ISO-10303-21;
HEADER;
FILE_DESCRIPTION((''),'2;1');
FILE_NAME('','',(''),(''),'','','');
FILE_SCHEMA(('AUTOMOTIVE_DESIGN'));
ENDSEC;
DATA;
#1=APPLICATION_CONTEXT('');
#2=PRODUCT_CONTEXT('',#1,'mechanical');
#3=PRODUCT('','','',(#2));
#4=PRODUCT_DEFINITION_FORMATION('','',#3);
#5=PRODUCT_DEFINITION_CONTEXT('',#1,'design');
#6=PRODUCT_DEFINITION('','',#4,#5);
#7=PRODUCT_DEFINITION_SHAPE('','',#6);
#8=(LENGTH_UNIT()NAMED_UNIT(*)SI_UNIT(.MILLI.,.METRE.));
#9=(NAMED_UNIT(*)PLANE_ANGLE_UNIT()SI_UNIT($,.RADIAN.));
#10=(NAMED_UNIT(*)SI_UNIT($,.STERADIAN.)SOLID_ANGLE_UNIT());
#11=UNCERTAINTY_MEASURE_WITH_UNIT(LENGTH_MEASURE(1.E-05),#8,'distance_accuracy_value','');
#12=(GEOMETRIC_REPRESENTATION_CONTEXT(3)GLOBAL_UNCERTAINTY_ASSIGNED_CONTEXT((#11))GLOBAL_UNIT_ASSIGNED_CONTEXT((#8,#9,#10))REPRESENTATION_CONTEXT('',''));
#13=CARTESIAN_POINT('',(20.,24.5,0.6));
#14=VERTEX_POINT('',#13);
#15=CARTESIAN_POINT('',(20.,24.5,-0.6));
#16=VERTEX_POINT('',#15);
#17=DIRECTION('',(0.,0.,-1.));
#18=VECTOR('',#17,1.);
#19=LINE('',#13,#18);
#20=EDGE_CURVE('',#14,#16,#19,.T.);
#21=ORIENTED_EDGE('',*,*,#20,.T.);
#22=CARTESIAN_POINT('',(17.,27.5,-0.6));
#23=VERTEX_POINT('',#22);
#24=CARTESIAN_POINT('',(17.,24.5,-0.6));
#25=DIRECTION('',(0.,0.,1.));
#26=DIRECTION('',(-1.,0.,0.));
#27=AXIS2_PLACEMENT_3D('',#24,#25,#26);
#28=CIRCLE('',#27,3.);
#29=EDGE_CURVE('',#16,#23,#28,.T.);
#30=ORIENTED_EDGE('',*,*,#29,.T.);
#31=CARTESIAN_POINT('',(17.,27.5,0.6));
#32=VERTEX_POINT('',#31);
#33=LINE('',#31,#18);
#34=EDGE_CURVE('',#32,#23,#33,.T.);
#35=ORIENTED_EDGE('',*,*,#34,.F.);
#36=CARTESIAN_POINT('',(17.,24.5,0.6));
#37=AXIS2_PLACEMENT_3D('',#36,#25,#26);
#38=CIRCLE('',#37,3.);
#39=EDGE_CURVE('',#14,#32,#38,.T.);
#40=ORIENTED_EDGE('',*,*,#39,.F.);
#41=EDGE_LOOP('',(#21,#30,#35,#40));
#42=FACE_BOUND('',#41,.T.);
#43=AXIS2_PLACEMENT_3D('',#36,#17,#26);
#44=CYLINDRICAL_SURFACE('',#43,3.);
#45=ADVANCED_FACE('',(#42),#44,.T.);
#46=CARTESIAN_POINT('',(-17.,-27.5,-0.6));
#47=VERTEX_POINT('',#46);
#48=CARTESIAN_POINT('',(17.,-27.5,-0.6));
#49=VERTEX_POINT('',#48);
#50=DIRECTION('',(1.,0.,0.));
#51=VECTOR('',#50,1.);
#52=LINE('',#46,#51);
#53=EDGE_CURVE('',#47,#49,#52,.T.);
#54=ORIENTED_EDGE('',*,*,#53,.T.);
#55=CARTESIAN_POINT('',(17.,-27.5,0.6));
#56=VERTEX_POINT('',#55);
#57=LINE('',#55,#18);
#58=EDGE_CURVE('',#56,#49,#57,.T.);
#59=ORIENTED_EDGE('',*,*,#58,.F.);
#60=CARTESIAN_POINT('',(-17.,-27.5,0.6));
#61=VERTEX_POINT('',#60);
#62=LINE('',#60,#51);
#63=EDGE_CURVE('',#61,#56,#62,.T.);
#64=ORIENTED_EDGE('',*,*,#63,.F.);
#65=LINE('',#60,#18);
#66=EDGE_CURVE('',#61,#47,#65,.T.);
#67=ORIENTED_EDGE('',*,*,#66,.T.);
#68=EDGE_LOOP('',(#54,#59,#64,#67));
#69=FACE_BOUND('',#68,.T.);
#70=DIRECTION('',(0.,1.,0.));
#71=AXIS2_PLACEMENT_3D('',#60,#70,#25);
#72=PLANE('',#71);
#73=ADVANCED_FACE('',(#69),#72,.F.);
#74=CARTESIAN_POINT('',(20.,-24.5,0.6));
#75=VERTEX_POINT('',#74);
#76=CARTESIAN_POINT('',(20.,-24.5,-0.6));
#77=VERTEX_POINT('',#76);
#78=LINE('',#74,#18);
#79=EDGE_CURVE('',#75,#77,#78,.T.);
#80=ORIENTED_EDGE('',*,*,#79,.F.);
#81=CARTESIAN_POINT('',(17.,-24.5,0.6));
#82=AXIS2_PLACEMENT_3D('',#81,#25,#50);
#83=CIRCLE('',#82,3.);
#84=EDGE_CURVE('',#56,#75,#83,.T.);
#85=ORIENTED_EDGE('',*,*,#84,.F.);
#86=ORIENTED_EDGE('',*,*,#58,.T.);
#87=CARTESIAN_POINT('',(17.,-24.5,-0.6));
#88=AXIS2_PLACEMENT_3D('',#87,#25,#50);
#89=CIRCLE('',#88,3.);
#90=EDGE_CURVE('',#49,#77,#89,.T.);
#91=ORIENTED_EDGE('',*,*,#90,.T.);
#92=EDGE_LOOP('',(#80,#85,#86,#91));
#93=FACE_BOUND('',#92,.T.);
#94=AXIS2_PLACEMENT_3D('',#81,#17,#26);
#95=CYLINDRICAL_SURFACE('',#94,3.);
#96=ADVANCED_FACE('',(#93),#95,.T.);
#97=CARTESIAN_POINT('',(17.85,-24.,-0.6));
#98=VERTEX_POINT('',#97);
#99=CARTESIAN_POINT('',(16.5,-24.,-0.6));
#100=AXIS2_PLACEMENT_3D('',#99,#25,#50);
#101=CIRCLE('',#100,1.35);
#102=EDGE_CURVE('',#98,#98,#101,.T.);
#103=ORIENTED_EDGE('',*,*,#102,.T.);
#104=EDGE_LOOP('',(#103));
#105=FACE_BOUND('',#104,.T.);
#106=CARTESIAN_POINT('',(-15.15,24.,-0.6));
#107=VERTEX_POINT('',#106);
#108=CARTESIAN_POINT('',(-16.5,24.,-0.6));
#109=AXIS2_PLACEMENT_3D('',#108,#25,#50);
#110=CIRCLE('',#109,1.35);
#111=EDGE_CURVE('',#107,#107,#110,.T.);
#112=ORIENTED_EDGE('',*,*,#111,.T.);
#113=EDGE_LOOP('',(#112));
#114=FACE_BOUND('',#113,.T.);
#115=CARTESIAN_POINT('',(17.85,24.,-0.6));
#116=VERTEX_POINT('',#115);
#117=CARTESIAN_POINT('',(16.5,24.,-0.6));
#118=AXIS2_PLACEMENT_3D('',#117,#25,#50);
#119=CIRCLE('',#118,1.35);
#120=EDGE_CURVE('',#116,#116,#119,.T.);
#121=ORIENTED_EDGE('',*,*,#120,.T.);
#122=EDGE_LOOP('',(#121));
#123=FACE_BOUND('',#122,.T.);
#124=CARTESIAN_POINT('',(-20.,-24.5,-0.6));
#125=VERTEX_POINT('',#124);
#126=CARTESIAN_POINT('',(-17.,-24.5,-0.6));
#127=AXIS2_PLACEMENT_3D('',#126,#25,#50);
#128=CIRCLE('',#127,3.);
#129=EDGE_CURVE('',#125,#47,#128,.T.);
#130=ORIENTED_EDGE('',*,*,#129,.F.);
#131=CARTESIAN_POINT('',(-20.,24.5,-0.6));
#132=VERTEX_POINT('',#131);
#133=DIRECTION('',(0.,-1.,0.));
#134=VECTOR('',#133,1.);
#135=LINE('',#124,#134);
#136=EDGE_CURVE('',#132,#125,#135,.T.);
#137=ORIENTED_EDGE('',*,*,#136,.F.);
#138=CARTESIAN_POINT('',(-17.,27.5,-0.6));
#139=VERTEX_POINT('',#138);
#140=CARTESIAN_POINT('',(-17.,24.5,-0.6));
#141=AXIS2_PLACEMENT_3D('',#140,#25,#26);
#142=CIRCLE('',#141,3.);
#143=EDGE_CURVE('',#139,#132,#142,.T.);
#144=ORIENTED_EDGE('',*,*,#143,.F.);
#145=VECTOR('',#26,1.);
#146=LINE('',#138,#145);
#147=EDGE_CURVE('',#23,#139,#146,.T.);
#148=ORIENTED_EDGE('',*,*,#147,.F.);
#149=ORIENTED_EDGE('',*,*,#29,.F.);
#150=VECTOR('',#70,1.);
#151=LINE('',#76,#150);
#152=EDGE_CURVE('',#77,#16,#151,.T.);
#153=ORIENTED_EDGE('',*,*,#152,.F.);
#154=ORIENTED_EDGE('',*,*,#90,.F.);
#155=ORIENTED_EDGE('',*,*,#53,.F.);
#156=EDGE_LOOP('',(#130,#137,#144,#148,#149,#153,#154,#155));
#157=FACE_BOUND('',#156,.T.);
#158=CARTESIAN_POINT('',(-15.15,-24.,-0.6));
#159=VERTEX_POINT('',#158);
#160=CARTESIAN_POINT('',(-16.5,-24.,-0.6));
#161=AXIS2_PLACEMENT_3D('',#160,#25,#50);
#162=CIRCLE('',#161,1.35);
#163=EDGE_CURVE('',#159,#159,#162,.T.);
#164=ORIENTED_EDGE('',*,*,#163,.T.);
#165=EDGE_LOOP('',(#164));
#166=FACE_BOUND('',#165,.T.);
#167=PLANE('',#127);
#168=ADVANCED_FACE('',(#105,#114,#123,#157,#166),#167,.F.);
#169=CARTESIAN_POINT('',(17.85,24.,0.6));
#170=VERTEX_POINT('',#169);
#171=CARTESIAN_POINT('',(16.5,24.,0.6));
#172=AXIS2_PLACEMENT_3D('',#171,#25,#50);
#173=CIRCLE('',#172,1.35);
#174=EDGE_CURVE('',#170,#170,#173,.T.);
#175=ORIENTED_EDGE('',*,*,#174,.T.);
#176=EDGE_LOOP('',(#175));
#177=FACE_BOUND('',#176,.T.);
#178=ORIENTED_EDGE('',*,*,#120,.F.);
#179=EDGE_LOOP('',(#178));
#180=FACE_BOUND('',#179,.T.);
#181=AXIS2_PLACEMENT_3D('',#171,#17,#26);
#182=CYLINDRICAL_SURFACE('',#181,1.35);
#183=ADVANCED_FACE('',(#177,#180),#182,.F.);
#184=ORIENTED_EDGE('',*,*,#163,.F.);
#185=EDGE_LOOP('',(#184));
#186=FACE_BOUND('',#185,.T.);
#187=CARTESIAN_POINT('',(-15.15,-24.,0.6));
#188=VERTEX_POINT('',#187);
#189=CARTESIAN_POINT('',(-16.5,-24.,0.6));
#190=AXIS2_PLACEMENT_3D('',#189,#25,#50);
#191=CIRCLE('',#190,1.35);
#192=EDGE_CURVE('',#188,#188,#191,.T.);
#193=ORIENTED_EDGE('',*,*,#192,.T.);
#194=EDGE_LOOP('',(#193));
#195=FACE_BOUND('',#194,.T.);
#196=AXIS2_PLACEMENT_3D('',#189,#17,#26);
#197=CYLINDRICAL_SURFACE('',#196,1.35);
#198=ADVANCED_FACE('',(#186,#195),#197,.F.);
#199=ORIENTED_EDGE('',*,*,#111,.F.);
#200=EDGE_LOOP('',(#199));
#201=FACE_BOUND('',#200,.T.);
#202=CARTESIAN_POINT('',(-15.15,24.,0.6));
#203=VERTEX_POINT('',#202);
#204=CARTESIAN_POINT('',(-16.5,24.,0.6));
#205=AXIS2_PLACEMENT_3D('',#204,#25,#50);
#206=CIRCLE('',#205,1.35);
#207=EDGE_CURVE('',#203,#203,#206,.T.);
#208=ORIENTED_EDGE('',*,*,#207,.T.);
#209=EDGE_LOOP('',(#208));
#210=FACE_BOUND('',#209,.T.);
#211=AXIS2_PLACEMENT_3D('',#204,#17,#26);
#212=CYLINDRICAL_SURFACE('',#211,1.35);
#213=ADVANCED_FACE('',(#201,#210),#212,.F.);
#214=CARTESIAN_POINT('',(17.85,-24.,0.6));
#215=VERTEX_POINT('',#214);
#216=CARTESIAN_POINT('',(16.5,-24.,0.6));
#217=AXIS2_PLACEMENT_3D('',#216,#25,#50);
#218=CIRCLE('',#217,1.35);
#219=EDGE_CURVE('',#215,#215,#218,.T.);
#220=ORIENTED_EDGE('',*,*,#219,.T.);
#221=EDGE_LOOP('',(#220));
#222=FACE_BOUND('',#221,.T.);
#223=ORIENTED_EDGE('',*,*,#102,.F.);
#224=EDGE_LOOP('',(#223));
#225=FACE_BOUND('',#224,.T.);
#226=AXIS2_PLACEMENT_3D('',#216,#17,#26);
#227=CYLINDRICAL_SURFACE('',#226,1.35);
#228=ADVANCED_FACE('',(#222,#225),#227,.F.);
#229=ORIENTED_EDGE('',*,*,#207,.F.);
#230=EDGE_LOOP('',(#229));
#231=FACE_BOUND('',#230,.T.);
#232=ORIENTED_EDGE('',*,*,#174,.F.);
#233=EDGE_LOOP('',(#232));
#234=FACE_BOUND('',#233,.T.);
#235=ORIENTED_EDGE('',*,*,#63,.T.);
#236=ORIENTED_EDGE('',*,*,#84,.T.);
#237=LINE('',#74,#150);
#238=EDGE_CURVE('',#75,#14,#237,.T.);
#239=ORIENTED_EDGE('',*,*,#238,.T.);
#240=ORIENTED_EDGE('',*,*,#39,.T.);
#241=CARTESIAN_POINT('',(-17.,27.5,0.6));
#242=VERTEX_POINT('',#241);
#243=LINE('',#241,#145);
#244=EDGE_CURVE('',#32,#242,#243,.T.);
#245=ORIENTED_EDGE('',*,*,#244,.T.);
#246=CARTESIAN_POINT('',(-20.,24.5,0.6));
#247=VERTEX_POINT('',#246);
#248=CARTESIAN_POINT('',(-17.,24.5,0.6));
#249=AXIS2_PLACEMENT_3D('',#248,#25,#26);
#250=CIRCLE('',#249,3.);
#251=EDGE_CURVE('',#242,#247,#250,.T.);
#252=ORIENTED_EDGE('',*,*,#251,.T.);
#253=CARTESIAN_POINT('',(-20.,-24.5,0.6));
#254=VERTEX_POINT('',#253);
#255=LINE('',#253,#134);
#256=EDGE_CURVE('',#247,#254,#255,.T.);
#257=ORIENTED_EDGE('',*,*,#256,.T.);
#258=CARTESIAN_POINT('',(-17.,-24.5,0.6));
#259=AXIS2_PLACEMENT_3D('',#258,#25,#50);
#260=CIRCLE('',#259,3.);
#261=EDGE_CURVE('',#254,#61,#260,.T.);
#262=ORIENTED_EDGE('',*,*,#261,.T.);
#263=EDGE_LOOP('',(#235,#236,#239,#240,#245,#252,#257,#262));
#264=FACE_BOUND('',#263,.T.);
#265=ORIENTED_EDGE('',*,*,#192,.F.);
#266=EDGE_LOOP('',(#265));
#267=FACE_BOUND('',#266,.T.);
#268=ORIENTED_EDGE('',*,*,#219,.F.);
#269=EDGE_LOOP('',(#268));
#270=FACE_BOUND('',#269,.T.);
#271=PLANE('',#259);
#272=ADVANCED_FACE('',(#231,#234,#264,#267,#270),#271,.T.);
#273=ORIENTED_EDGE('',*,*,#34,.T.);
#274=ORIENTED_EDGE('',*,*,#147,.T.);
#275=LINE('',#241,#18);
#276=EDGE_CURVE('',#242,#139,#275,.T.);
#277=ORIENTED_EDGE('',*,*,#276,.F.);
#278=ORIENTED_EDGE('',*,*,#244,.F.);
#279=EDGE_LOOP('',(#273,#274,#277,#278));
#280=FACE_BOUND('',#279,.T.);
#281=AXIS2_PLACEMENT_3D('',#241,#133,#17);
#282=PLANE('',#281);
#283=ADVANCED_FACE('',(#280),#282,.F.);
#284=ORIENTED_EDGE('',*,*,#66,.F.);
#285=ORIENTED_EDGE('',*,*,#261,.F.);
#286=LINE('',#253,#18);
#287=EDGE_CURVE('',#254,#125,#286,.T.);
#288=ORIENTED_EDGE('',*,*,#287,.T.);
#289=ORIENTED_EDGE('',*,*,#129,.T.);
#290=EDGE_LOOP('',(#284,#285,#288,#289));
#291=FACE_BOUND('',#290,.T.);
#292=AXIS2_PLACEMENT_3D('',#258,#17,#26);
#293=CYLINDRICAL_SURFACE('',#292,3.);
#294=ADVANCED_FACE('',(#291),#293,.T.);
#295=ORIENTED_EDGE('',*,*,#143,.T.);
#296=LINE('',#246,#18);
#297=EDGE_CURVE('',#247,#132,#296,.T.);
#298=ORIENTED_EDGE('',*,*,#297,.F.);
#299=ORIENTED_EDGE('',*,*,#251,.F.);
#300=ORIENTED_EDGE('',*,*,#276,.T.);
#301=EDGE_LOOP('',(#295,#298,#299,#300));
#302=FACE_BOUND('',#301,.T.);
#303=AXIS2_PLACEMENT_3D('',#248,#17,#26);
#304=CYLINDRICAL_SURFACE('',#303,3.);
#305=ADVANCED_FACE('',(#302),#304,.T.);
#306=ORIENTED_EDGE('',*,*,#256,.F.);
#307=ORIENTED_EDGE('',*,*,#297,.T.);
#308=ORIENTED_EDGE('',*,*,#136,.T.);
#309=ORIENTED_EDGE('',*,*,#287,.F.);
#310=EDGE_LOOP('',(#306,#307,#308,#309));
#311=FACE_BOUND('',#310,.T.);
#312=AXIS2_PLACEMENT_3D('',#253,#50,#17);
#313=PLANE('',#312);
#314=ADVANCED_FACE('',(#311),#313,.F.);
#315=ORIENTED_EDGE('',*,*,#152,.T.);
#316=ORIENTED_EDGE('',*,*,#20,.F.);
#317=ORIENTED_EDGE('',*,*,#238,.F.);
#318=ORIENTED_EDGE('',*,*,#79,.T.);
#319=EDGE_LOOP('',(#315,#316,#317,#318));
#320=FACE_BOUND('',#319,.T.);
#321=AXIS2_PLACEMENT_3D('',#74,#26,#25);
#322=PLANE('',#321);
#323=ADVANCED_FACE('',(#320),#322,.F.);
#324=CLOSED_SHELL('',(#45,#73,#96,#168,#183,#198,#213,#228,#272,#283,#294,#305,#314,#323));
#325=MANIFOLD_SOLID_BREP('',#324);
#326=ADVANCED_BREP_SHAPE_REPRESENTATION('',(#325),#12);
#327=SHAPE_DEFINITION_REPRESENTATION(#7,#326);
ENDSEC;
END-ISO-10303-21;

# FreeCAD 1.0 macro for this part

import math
import FreeCAD as App
import Part
import Sketcher

doc = App.newDocument("Part")
body = doc.addObject("PartDesign::Body", "Body")

sketch1 = doc.addObject("Sketcher::SketchObject", "Sketch")
body.addObject(sketch1)
sketch1.AttachmentSupport = (doc.XY_Plane, [""])
sketch1.MapMode = "FlatFace"
sketch1.addGeometry([
    Part.LineSegment(App.Vector(-17, -27.5, 0), App.Vector(17, -27.5, 0)),
    Part.ArcOfCircle(Part.Circle(App.Vector(17, -24.5, 0), App.Vector(0, 0, 1), 3), math.radians(-90), math.radians(0)),
    Part.LineSegment(App.Vector(20, -24.5, 0), App.Vector(20, 24.5, 0)),
    Part.ArcOfCircle(Part.Circle(App.Vector(17, 24.5, 0), App.Vector(0, 0, 1), 3), math.radians(0), math.radians(90)),
    Part.LineSegment(App.Vector(17, 27.5, 0), App.Vector(-17, 27.5, 0)),
    Part.ArcOfCircle(Part.Circle(App.Vector(-17, 24.5, 0), App.Vector(0, 0, 1), 3), math.radians(90), math.radians(180)),
    Part.LineSegment(App.Vector(-20, 24.5, 0), App.Vector(-20, -24.5, 0)),
    Part.ArcOfCircle(Part.Circle(App.Vector(-17, -24.5, 0), App.Vector(0, 0, 1), 3), math.radians(180), math.radians(270)),
    Part.Circle(App.Vector(-16.5, -24, 0), App.Vector(0, 0, 1), 1.35),
    Part.Circle(App.Vector(16.5, -24, 0), App.Vector(0, 0, 1), 1.35),
    Part.Circle(App.Vector(-16.5, 24, 0), App.Vector(0, 0, 1), 1.35),
    Part.Circle(App.Vector(16.5, 24, 0), App.Vector(0, 0, 1), 1.35),
], False)
sketch1.addConstraint([
    Sketcher.Constraint("Tangent", 0, 2, 1, 1),
    Sketcher.Constraint("Tangent", 1, 2, 2, 1),
    Sketcher.Constraint("Tangent", 2, 2, 3, 1),
    Sketcher.Constraint("Tangent", 3, 2, 4, 1),
    Sketcher.Constraint("Tangent", 4, 2, 5, 1),
    Sketcher.Constraint("Tangent", 5, 2, 6, 1),
    Sketcher.Constraint("Tangent", 6, 2, 7, 1),
    Sketcher.Constraint("Tangent", 7, 2, 0, 1),
    Sketcher.Constraint("Horizontal", 0),
    Sketcher.Constraint("Vertical", 2),
    Sketcher.Constraint("Horizontal", 4),
    Sketcher.Constraint("Vertical", 6),
    Sketcher.Constraint("Equal", 1, 3),
    Sketcher.Constraint("Equal", 3, 5),
    Sketcher.Constraint("Equal", 5, 7),
    Sketcher.Constraint("Equal", 8, 9),
    Sketcher.Constraint("Equal", 9, 10),
    Sketcher.Constraint("Equal", 10, 11),
    Sketcher.Constraint("Symmetric", 1, 3, 5, 3, -1, 1),
    Sketcher.Constraint("Symmetric", 9, 3, 10, 3, -1, 1),
    Sketcher.Constraint("Symmetric", 8, 3, 11, 3, -1, 1),
    Sketcher.Constraint("Symmetric", 8, 3, 9, 3, -2),
    Sketcher.Constraint("Radius", 1, 3.0),
    Sketcher.Constraint("Diameter", 8, 2.7),
    Sketcher.Constraint("DistanceX", 0, 1, 0, 2, 34.0),
    Sketcher.Constraint("DistanceY", 2, 1, 2, 2, 49.0),
    Sketcher.Constraint("DistanceY", 8, 3, -1, 1, 24.0),
    Sketcher.Constraint("DistanceX", 8, 3, 9, 3, 33.0),
])
pad1 = doc.addObject("PartDesign::Pad", "Pad")
body.addObject(pad1)
pad1.Profile = sketch1
pad1.Length = 1.2
pad1.Midplane = True

doc.recompute()
